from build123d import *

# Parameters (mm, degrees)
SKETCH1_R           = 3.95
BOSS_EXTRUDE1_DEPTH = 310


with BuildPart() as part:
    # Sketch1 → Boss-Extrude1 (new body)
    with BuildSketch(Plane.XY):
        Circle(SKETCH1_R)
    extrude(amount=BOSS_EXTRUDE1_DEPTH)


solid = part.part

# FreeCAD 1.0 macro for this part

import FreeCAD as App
import Part
import Sketcher

V = App.Vector
Q = App.Units.Quantity

doc = App.newDocument("Part")
body = doc.addObject("PartDesign::Body", "Body")

# Sketch on XY plane
sketch1 = doc.addObject("Sketcher::SketchObject", "Sketch")
body.addObject(sketch1)
sketch1.AttachmentSupport = (doc.XY_Plane, [""])
sketch1.MapMode = "FlatFace"
sketch1.addGeometry(Part.Circle(V(0, 0, 0), V(0, 0, 1), 4), False)
sketch1.addConstraint(Sketcher.Constraint("Coincident", 0, 3, -1, 1))
sketch1.addConstraint(Sketcher.Constraint("Diameter", 0, Q("7.9 mm")))
pad1 = doc.addObject("PartDesign::Pad", "Pad")
body.addObject(pad1)
pad1.Profile = sketch1
pad1.Length = 310

doc.recompute()
